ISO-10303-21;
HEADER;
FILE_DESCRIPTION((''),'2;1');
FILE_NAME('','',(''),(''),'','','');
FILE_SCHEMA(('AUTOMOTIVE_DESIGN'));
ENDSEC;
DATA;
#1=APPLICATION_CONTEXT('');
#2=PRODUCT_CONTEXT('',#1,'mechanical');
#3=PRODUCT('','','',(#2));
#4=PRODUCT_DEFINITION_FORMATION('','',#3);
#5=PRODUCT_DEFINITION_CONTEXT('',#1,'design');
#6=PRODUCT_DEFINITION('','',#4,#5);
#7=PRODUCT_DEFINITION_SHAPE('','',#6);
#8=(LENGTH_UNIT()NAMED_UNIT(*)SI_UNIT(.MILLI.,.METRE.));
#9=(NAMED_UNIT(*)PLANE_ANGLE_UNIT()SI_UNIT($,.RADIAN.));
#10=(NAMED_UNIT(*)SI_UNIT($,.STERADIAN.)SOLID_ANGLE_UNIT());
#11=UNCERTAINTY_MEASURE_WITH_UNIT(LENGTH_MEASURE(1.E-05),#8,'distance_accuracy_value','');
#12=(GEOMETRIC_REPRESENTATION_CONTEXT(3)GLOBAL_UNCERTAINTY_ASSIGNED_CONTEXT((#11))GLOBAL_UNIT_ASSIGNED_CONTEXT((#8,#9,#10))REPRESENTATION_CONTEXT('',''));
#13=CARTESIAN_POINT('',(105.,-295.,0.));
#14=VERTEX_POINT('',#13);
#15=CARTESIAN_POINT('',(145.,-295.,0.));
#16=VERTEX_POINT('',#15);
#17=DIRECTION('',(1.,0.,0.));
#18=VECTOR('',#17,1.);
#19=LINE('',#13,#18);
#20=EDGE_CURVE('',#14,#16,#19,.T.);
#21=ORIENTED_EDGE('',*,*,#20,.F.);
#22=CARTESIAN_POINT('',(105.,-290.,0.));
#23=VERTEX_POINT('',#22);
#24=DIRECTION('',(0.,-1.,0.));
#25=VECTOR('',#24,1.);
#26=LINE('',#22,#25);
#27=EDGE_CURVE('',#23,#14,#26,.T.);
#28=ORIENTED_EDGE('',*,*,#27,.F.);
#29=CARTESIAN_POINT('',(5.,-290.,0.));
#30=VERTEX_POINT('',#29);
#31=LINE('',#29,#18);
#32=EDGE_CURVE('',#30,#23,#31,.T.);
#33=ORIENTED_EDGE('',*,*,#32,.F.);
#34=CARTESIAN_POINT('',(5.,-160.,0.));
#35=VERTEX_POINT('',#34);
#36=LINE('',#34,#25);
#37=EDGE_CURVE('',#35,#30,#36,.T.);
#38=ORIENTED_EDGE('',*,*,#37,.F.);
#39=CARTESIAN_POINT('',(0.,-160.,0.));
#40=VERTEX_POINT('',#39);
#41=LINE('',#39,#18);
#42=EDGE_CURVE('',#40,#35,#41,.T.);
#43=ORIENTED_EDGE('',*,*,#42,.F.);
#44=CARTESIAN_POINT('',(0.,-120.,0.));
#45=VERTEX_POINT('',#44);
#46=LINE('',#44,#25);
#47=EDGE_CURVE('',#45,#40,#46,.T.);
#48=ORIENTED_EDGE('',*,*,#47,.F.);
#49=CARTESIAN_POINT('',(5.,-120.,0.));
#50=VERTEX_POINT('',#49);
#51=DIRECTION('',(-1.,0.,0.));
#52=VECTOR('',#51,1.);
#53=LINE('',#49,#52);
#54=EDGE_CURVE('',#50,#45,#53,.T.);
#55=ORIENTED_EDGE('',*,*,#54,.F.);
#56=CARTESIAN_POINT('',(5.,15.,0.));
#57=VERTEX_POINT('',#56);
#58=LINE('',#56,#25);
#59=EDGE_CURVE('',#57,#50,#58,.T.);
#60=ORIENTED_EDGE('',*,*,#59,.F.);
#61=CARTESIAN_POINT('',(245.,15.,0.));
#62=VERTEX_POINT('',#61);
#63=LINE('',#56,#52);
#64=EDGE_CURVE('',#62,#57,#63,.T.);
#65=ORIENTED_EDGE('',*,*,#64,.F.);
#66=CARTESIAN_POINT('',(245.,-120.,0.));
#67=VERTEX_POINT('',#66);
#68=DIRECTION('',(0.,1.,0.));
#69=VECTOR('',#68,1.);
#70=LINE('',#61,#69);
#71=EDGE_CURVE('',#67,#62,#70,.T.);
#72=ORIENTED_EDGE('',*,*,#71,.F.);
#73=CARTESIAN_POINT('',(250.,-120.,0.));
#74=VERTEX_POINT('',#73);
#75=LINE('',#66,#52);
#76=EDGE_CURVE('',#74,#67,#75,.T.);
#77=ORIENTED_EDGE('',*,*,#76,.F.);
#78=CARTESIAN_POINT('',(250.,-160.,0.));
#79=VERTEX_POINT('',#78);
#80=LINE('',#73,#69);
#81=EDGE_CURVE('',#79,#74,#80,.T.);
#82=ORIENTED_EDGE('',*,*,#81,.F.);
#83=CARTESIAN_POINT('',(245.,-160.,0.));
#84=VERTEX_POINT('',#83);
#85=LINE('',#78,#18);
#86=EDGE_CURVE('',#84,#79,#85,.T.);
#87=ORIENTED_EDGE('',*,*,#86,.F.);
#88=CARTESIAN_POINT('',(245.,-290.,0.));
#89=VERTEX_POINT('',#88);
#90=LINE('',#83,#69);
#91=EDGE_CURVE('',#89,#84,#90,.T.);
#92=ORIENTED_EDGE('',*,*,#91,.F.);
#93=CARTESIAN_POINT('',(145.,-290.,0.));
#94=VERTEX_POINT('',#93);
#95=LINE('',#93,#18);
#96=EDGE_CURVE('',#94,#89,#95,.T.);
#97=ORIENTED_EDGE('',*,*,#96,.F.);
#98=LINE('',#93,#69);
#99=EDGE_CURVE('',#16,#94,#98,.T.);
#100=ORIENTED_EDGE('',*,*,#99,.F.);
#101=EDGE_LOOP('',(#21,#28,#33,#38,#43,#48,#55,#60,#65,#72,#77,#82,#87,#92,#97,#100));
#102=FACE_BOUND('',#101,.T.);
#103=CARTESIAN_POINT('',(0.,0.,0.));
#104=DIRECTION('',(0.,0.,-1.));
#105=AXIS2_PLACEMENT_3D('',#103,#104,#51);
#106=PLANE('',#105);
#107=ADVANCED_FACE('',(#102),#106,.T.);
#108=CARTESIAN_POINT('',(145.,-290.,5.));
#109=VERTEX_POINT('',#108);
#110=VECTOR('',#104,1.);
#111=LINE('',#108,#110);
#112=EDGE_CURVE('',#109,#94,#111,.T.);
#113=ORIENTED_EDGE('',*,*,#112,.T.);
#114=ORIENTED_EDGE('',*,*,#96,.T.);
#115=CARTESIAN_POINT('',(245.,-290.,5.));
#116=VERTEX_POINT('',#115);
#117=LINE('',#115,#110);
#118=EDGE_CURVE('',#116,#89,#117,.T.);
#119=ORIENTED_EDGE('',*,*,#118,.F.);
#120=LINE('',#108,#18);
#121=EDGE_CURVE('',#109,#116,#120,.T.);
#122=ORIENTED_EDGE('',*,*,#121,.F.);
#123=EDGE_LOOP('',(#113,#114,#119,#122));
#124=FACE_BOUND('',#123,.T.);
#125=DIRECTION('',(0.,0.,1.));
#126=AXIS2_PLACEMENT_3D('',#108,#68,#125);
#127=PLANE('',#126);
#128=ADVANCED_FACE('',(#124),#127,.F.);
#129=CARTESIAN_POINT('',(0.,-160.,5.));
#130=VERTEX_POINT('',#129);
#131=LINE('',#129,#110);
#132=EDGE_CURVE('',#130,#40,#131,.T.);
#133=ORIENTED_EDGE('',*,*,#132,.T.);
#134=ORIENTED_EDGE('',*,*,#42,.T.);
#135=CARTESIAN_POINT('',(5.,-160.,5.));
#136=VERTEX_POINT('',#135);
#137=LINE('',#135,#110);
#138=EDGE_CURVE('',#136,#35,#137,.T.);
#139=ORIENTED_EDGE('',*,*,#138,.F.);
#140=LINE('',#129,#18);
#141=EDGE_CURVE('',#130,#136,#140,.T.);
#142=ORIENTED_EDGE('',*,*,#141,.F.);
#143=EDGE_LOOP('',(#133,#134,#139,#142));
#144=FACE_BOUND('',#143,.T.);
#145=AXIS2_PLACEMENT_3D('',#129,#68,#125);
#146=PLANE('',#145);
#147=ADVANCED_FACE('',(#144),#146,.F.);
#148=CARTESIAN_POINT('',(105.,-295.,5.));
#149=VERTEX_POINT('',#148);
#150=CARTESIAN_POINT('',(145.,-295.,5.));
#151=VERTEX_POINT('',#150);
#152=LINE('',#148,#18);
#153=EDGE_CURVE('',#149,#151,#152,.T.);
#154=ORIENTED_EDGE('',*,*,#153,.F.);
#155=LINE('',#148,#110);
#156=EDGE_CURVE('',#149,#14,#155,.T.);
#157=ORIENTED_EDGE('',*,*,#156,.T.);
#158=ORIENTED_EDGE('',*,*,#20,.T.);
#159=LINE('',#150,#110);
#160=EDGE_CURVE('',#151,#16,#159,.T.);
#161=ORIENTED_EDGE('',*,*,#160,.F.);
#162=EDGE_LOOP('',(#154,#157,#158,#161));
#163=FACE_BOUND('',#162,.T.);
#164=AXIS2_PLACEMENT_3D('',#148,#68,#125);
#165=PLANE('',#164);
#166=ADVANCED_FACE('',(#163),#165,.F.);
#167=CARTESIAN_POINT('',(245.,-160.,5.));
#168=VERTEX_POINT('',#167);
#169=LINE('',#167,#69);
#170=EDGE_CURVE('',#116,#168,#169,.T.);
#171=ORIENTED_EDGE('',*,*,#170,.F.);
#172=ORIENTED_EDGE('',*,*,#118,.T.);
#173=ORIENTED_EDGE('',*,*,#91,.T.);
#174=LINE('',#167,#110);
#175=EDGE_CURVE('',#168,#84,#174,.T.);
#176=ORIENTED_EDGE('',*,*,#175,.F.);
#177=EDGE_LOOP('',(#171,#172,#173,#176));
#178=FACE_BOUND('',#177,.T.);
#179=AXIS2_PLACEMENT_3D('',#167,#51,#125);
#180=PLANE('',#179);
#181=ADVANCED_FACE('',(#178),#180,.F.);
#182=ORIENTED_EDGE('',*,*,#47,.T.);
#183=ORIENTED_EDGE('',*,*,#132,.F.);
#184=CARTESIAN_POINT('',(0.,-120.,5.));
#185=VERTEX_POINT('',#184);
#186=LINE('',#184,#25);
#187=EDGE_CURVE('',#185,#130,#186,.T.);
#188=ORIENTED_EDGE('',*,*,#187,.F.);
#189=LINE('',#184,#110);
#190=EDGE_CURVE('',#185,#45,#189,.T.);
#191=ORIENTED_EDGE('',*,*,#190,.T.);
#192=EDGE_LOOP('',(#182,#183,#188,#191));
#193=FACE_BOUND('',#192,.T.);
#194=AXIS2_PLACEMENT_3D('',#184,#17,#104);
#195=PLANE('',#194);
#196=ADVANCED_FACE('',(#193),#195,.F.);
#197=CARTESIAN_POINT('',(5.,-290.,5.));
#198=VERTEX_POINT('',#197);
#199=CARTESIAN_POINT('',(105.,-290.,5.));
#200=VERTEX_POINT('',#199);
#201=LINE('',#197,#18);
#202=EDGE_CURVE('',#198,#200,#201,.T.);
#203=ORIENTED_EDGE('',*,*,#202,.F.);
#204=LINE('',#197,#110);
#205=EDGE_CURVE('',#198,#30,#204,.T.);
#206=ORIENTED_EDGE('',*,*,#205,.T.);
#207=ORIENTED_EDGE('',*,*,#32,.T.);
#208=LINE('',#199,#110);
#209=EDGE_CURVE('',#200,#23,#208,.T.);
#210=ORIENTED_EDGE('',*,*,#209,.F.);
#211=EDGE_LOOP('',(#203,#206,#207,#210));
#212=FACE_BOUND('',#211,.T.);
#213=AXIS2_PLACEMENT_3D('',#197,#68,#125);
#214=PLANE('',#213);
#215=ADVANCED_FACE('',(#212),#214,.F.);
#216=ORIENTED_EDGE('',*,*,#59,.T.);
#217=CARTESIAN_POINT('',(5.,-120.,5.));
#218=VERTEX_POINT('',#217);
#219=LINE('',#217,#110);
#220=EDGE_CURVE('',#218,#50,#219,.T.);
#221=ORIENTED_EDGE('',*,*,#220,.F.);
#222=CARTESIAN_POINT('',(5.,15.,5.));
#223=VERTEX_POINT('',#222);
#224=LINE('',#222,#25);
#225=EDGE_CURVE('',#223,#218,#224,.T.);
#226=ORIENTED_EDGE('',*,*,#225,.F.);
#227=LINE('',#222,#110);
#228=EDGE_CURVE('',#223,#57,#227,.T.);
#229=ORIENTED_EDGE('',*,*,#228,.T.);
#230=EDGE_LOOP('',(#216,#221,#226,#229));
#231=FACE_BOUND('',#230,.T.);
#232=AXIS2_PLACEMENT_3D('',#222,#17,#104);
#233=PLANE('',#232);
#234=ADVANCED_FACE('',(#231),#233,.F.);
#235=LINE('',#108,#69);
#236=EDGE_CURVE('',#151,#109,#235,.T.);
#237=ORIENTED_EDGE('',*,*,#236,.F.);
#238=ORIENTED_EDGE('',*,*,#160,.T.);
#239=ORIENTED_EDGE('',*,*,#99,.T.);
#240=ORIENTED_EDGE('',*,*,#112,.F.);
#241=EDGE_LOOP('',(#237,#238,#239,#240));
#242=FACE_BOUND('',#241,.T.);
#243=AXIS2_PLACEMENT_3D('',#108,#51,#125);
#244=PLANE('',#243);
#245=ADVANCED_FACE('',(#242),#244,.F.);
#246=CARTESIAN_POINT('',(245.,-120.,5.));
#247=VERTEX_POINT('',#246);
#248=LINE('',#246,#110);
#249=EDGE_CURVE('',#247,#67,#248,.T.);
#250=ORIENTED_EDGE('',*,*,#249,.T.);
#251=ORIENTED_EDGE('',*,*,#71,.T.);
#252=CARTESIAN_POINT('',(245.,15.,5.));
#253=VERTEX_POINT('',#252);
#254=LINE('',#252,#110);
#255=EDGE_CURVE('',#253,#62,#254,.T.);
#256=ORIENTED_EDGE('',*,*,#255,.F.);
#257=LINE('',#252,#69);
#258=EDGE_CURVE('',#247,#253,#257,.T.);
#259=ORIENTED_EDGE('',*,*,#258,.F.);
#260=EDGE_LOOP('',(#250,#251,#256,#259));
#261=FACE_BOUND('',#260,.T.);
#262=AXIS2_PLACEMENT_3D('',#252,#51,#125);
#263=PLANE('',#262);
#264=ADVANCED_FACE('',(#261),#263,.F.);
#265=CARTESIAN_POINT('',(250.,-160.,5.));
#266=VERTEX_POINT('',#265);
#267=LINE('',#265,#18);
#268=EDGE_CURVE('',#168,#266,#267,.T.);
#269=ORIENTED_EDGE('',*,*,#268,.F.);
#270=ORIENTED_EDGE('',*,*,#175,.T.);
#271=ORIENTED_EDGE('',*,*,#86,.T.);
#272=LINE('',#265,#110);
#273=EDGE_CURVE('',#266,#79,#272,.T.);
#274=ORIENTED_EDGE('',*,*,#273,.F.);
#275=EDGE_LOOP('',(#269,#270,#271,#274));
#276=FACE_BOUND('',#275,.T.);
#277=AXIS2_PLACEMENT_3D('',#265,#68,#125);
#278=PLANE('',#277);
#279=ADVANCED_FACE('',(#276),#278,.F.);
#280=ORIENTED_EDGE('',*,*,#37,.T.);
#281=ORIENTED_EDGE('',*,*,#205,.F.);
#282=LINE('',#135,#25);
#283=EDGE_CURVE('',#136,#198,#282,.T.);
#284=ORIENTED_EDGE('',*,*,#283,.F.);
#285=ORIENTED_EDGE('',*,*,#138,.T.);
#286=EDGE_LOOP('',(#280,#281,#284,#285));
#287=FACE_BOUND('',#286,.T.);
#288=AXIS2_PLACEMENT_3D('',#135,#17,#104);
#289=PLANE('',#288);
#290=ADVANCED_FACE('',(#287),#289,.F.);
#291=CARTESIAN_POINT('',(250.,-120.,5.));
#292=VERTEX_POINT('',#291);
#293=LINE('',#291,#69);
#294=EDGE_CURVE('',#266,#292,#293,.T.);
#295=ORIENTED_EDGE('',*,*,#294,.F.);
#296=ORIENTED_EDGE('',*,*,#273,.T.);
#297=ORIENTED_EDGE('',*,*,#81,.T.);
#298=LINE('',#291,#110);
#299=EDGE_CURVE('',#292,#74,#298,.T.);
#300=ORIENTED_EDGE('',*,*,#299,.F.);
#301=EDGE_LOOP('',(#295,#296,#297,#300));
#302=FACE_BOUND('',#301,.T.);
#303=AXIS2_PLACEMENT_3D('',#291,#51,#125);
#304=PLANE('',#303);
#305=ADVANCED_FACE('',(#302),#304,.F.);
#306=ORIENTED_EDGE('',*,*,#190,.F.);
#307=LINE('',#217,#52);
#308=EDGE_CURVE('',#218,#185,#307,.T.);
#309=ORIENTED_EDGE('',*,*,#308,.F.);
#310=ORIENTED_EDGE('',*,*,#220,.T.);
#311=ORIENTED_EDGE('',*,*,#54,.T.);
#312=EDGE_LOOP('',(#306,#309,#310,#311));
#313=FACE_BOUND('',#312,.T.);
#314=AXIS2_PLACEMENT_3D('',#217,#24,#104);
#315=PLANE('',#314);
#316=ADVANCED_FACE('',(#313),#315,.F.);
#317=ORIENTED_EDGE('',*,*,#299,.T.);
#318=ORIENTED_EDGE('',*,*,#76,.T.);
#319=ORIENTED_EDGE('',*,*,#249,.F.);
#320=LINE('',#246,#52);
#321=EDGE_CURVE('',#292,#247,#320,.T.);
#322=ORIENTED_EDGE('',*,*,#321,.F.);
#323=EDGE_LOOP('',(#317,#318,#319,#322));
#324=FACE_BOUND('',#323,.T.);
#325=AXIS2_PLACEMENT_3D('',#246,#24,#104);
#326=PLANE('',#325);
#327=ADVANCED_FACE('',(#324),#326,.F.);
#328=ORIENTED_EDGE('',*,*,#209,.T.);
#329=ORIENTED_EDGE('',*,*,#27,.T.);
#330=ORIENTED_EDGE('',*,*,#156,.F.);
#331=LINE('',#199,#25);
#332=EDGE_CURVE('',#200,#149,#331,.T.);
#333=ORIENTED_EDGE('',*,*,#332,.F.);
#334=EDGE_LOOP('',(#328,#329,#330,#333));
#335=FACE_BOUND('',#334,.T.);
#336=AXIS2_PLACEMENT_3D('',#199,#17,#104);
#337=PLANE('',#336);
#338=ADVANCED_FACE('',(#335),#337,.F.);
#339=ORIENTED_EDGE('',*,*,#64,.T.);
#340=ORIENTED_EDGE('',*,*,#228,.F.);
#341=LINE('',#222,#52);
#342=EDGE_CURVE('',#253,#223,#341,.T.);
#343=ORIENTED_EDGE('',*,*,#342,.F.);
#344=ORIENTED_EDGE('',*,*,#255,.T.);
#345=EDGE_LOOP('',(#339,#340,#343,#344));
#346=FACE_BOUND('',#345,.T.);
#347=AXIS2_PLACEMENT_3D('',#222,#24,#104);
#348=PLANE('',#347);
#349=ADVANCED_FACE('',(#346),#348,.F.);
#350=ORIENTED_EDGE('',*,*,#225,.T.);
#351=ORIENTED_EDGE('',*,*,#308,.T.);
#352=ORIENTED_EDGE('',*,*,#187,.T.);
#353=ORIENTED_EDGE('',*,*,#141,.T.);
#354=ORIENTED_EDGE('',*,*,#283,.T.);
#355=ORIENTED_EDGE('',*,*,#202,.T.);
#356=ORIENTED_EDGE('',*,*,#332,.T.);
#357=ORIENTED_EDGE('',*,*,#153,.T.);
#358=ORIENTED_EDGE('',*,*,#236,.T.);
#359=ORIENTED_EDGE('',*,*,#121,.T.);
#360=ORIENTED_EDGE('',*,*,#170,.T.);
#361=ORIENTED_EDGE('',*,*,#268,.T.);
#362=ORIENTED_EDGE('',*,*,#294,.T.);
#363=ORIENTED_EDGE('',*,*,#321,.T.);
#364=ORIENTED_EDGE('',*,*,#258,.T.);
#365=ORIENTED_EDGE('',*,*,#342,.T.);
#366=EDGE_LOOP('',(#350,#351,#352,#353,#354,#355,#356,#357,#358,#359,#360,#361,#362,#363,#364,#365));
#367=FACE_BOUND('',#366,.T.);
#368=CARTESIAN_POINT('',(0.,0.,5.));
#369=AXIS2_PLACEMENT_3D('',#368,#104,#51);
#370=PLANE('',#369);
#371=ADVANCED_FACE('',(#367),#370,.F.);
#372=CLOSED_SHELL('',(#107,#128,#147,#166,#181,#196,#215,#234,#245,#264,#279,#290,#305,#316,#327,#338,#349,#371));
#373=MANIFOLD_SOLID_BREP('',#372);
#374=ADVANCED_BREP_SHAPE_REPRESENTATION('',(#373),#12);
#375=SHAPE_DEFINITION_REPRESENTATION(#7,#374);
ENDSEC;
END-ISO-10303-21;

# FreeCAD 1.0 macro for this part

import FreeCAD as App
import Part
import Sketcher
Q = App.Units.Quantity


def add_polygon(sketch, points):
    """Adds a closed chain of lines whose ends are joined by coincident constraints."""
    first, n = sketch.GeometryCount, len(points)
    for a, b in zip(points, points[1:] + points[:1]):
        sketch.addGeometry(Part.LineSegment(App.Vector(*a, 0), App.Vector(*b, 0)), False)
    for i in range(n):
        sketch.addConstraint(Sketcher.Constraint("Coincident", first + i, 2, first + (i + 1) % n, 1))

doc = App.newDocument("Part")
body = doc.addObject("PartDesign::Body", "Body")

sketch1 = doc.addObject("Sketcher::SketchObject", "Sketch")
body.addObject(sketch1)
sketch1.AttachmentSupport = (doc.XY_Plane, [""])
sketch1.MapMode = "FlatFace"
add_polygon(sketch1, [(245, 15), (5, 15), (5, -120), (0, -120), (0, -160), (5, -160), (5, -290), (105, -290), (105, -295), (145, -295), (145, -290), (245, -290), (245, -160), (250, -160), (250, -120), (245, -120)])
sketch1.addConstraint([
    Sketcher.Constraint("Horizontal", 0),
    Sketcher.Constraint("Vertical", 1),
    Sketcher.Constraint("Horizontal", 2),
    Sketcher.Constraint("Vertical", 3),
    Sketcher.Constraint("Horizontal", 4),
    Sketcher.Constraint("Vertical", 5),
    Sketcher.Constraint("Horizontal", 6),
    Sketcher.Constraint("Vertical", 7),
    Sketcher.Constraint("Horizontal", 8),
    Sketcher.Constraint("Vertical", 9),
    Sketcher.Constraint("Horizontal", 10),
    Sketcher.Constraint("Vertical", 11),
    Sketcher.Constraint("Horizontal", 12),
    Sketcher.Constraint("Vertical", 13),
    Sketcher.Constraint("Horizontal", 14),
    Sketcher.Constraint("Vertical", 15),
    Sketcher.Constraint("PointOnObject", 2, 2, -2),
    Sketcher.Constraint("Horizontal", 6, 2, 9, 2),
    Sketcher.Constraint("Horizontal", 4, 2, 11, 2),
    Sketcher.Constraint("Horizontal", 2, 2, 13, 2),
    Sketcher.Constraint("Vertical", 1, 2, 4, 2),
    Sketcher.Constraint("Vertical", 11, 2, 14, 2),
    Sketcher.Constraint("Equal", 6, 10),
    Sketcher.Constraint("Equal", 4, 12),
    Sketcher.Constraint("Equal", 8, 3),
    Sketcher.Constraint("Equal", 14, 7),
    Sketcher.Constraint("DistanceX", 0, 2, 0, 1, Q("240 mm")),
    Sketcher.Constraint("DistanceX", 2, 2, 2, 1, Q("5 mm")),
    Sketcher.Constraint("DistanceX", 6, 1, 6, 2, Q("100 mm")),
    Sketcher.Constraint("DistanceY", 1, 2, 1, 1, Q("135 mm")),
    Sketcher.Constraint("DistanceY", 5, 2, 5, 1, Q("130 mm")),
    Sketcher.Constraint("DistanceY", -1, 1, 0, 2, Q("15 mm")),
])
pad1 = doc.addObject("PartDesign::Pad", "Pad")
body.addObject(pad1)
pad1.Profile = sketch1
pad1.Length = 5

doc.recompute()
